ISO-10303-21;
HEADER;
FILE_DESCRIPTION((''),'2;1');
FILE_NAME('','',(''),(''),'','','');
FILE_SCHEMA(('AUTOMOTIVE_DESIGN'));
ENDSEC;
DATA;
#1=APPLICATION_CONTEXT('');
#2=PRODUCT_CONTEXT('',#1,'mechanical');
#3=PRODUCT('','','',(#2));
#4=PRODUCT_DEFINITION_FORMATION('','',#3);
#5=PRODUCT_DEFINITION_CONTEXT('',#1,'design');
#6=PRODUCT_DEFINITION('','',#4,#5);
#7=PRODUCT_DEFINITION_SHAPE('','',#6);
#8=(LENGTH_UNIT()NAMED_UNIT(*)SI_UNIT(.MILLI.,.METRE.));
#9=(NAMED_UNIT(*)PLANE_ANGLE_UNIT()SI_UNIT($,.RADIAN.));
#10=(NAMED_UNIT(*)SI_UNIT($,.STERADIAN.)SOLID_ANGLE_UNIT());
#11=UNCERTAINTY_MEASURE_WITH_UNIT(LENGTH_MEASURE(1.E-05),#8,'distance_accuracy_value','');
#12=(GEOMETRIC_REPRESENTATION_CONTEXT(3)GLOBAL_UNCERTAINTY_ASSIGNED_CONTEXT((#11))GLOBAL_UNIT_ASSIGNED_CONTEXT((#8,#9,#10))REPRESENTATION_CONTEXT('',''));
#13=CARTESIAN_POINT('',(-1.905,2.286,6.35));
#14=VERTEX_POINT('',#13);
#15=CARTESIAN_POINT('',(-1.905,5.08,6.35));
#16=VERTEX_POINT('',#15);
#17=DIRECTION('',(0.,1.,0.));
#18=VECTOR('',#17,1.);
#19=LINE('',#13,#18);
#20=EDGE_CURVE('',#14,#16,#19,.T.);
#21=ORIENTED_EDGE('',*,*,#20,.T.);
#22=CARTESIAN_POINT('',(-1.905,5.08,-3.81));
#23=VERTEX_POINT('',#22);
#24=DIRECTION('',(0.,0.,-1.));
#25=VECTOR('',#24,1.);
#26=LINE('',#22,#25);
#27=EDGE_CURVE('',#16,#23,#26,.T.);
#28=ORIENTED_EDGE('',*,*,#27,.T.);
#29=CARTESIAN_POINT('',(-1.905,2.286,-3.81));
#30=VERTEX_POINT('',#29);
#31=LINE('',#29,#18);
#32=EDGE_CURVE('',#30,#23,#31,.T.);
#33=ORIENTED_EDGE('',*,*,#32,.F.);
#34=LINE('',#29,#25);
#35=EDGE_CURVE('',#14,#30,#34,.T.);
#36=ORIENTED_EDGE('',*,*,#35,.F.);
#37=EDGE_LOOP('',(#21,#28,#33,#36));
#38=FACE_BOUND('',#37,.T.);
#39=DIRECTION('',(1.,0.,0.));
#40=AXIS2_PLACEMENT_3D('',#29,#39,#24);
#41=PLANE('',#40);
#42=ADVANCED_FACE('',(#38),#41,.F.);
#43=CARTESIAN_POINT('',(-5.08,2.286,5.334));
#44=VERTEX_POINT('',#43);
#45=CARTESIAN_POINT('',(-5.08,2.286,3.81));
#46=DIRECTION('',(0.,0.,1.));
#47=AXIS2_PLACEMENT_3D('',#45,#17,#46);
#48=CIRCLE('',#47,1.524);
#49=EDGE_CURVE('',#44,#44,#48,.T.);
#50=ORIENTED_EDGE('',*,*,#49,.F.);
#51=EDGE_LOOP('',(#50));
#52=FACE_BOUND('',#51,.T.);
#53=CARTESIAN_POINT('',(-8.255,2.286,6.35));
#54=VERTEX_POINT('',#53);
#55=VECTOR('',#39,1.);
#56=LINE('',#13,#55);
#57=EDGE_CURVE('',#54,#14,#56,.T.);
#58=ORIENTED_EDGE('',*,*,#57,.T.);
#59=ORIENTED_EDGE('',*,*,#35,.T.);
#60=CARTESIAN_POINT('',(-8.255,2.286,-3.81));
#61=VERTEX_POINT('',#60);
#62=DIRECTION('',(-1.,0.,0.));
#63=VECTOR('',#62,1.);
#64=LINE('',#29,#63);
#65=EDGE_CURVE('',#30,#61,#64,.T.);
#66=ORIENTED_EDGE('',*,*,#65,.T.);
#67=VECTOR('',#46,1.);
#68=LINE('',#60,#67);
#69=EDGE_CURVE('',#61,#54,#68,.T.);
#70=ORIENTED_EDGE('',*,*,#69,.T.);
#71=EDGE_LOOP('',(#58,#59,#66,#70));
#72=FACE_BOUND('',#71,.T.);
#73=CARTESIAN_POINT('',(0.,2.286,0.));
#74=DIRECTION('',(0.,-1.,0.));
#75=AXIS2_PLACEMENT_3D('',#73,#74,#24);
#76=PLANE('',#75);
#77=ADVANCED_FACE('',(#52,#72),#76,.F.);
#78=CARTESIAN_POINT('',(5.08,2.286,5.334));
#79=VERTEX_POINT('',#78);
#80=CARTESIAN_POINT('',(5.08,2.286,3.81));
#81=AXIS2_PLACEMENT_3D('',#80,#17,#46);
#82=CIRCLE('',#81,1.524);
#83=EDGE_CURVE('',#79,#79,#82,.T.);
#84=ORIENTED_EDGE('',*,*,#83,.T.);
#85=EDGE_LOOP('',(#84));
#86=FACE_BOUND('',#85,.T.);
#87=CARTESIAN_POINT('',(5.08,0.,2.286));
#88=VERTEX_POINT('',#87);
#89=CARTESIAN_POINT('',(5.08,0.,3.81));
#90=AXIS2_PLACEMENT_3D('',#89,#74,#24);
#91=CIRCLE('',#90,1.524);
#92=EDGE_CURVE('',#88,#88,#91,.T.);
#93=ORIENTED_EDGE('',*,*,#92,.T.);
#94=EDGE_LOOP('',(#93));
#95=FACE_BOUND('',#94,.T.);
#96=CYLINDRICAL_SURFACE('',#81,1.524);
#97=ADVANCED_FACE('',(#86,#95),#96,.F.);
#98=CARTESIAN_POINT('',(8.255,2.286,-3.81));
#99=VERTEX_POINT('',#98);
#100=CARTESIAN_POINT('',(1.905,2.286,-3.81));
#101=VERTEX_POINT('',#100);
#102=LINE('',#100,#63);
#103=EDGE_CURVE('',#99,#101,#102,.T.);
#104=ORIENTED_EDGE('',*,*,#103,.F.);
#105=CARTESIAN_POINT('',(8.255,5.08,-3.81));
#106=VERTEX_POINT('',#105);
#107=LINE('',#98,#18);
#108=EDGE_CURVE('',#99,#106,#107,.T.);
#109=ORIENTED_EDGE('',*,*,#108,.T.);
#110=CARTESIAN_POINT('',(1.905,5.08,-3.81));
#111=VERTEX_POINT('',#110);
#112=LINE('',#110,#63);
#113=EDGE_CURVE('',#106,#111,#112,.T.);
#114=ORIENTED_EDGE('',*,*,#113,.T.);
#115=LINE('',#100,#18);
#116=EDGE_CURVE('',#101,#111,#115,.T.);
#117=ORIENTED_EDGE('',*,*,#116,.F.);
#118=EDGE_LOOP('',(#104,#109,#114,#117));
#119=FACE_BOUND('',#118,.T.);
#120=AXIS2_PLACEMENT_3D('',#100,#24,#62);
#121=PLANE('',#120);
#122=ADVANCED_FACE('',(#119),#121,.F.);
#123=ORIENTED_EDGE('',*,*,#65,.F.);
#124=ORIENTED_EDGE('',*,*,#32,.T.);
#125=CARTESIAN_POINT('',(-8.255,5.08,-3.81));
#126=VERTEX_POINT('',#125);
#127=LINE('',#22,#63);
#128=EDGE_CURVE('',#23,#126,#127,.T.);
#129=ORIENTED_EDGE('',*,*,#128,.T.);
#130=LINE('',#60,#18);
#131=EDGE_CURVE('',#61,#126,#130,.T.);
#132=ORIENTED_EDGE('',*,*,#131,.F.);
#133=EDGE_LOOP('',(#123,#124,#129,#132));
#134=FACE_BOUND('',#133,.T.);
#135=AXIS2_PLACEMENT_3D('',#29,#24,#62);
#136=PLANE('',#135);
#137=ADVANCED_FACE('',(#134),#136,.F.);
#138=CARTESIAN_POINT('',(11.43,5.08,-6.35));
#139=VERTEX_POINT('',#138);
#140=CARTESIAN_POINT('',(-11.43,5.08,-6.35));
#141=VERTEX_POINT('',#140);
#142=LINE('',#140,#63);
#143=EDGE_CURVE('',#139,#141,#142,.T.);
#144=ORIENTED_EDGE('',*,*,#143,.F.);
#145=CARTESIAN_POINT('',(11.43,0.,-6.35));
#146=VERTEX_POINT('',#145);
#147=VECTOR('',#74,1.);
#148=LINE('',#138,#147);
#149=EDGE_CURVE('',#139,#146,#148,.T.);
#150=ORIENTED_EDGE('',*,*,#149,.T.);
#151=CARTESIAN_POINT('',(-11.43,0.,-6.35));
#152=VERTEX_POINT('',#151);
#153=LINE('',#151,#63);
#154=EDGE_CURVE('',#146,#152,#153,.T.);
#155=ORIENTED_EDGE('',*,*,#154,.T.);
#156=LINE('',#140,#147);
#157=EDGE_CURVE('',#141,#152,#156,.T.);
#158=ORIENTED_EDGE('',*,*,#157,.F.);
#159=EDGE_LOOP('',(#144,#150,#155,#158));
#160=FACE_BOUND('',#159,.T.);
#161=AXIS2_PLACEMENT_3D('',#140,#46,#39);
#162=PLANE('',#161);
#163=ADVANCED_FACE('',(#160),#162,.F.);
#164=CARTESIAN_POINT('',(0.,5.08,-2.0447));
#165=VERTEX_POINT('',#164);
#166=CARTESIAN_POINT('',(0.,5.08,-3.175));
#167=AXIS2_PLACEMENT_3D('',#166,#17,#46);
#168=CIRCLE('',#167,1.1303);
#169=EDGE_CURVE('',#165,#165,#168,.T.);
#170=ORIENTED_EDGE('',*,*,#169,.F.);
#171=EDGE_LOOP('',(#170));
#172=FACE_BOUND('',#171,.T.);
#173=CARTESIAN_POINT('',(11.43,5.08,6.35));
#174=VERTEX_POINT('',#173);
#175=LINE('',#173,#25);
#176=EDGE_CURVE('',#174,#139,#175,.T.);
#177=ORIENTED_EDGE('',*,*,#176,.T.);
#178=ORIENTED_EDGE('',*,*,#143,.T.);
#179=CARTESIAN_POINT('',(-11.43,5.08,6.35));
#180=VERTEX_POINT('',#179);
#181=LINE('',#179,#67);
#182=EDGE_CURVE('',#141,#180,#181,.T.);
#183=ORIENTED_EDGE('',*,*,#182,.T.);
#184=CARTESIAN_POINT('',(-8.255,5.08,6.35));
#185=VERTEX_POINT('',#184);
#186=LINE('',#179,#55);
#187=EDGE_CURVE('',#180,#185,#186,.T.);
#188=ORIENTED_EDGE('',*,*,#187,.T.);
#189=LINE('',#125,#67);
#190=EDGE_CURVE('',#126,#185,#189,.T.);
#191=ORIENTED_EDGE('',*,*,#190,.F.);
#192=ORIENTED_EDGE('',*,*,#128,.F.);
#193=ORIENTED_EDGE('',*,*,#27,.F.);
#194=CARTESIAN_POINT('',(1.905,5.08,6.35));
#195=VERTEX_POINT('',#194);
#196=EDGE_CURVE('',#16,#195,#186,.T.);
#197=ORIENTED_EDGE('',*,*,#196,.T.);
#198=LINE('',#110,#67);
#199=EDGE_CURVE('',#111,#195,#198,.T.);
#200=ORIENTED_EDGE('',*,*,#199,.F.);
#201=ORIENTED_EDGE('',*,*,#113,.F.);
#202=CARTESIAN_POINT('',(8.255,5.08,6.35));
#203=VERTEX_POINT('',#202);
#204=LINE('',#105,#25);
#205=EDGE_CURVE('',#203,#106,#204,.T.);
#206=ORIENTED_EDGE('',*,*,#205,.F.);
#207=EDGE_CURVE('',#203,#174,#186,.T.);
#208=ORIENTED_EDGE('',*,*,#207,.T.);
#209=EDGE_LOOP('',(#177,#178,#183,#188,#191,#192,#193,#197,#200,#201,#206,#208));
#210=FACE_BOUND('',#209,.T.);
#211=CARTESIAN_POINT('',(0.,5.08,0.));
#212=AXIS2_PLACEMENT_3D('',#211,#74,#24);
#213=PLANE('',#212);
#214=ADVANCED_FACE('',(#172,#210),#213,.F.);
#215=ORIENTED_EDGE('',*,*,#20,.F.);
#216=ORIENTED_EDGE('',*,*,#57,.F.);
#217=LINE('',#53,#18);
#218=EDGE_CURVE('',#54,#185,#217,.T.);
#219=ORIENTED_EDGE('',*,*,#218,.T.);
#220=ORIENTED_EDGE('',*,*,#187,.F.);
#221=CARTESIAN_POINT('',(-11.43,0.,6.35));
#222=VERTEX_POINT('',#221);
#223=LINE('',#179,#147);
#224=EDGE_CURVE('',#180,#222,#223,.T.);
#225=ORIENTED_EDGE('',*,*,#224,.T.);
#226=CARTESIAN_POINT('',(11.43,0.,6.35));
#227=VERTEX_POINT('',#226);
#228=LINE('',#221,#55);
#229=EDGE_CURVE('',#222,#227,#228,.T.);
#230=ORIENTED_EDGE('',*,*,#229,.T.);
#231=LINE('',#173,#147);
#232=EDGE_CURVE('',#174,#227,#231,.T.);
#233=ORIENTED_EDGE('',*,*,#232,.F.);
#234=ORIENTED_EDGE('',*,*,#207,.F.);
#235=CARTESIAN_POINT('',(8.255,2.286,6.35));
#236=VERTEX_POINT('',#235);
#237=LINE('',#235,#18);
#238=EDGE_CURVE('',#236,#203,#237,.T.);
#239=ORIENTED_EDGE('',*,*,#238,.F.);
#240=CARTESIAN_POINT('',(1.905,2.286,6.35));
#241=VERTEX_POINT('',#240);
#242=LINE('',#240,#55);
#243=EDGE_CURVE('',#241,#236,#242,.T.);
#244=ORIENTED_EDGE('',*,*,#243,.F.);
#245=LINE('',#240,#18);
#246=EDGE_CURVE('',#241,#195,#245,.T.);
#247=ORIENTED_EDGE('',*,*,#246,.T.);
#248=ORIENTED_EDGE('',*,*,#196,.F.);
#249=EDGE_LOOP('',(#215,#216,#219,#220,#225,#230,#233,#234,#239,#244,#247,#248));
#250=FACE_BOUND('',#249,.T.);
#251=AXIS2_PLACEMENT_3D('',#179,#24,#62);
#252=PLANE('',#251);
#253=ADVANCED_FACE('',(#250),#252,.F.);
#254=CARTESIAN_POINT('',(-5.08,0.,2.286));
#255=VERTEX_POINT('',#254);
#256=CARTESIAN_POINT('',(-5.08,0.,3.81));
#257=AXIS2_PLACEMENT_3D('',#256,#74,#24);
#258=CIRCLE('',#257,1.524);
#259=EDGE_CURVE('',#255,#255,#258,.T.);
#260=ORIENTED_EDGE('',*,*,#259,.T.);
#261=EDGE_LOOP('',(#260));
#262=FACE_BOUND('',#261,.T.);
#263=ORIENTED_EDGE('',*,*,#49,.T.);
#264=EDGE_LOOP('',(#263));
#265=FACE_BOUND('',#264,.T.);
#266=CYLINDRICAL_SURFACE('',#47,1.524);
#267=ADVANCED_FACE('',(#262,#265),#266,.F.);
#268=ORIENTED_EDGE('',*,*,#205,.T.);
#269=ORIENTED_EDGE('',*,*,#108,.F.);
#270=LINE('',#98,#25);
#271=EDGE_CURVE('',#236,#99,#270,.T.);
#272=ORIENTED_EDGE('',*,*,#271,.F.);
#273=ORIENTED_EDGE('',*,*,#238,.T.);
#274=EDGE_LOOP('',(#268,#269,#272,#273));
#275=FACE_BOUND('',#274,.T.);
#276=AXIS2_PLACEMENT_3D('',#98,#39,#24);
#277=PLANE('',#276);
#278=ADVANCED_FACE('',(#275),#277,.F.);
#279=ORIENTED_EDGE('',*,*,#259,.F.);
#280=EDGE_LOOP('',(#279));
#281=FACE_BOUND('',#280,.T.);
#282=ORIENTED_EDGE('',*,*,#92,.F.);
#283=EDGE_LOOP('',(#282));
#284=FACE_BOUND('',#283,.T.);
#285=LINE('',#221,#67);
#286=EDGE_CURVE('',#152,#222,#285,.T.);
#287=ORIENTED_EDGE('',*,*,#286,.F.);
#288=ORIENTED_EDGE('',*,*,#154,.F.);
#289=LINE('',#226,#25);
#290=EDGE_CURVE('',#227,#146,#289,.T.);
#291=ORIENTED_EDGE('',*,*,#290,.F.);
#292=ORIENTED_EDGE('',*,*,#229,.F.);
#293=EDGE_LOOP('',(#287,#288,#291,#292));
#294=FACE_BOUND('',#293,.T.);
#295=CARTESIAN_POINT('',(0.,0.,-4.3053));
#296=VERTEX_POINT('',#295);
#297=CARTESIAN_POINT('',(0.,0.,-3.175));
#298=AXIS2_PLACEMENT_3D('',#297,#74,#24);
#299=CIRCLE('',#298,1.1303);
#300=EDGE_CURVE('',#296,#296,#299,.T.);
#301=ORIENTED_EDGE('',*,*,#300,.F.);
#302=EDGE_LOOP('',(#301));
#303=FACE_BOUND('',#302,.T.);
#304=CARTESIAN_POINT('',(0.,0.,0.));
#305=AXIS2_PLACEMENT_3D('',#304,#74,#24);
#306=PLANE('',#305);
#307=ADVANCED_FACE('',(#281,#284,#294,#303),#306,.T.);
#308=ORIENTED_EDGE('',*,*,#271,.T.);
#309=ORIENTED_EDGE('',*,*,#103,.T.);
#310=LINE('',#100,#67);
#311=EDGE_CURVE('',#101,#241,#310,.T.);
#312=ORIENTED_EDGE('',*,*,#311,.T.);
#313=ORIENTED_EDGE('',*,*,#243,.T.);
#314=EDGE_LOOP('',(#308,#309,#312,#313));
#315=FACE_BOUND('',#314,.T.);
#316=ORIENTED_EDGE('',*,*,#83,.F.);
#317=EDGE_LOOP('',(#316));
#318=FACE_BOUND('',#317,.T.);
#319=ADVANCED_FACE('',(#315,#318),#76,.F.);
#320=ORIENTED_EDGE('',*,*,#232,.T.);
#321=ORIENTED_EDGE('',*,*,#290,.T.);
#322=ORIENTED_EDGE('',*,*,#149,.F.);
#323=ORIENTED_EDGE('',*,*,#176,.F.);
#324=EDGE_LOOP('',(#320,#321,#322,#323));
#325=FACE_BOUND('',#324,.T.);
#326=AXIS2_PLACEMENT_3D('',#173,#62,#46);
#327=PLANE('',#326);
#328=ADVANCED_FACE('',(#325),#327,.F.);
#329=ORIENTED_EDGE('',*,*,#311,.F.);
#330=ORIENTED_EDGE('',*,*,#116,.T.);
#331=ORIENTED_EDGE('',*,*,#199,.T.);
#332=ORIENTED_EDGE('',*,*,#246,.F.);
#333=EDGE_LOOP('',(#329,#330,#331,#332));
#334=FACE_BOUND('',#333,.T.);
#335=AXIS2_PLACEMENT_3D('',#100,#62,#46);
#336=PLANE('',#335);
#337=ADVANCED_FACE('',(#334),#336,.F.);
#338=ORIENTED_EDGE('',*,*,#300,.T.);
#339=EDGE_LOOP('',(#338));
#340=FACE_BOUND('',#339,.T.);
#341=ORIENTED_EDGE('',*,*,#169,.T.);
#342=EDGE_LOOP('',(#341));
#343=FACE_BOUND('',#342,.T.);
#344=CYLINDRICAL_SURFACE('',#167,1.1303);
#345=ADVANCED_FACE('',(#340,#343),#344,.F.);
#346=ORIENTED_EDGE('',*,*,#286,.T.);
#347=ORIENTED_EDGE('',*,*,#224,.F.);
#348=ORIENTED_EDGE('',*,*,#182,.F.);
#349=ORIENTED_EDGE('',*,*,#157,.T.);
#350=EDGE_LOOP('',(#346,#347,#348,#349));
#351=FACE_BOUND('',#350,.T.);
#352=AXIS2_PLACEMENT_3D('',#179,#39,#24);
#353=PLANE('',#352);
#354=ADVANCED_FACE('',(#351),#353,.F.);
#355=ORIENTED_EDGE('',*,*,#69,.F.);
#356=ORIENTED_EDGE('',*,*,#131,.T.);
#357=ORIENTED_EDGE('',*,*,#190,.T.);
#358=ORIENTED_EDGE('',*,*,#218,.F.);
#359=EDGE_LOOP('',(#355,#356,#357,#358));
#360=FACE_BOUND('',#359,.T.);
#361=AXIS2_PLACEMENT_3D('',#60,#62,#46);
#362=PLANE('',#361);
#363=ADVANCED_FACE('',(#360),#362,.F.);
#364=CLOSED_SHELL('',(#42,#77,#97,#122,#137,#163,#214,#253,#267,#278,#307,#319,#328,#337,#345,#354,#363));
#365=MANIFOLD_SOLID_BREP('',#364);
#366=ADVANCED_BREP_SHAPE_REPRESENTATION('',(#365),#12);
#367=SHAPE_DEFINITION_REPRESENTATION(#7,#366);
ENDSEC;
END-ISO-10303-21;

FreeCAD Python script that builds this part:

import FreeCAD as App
import Part
import Sketcher

V = App.Vector
Q = App.Units.Quantity


def add_polygon(sketch, points):
    """Adds a closed chain of lines whose ends are joined by coincident constraints."""
    first, n = sketch.GeometryCount, len(points)
    for a, b in zip(points, points[1:] + points[:1]):
        sketch.addGeometry(Part.LineSegment(App.Vector(*a, 0), App.Vector(*b, 0)), False)
    for i in range(n):
        sketch.addConstraint(Sketcher.Constraint("Coincident", first + i, 2, first + (i + 1) % n, 1))

doc = App.newDocument("Part")
body = doc.addObject("PartDesign::Body", "Body")

# Sketch on XZ plane
sketch1 = doc.addObject("Sketcher::SketchObject", "Sketch")
body.addObject(sketch1)
sketch1.AttachmentSupport = (doc.XZ_Plane, [""])
sketch1.MapMode = "FlatFace"
add_polygon(sketch1, [(-11, -6), (-11, 6), (11, 6), (11, -6)])  # lines 0-3
sketch1.addConstraint(Sketcher.Constraint("Vertical", 0))
sketch1.addConstraint(Sketcher.Constraint("Horizontal", 1))
sketch1.addConstraint(Sketcher.Constraint("Vertical", 2))
sketch1.addConstraint(Sketcher.Constraint("Horizontal", 3))
sketch1.addConstraint(Sketcher.Constraint("Symmetric", 0, 2, 2, 2, -1, 1))
sketch1.addConstraint(Sketcher.Constraint("DistanceX", 1, 1, 1, 2, Q("0.9 in")))
sketch1.addConstraint(Sketcher.Constraint("DistanceY", 0, 1, 0, 2, Q("0.5 in")))
pad1 = doc.addObject("PartDesign::Pad", "Pad")
body.addObject(pad1)
pad1.Profile = sketch1
pad1.Length = Q("0.2 in")
pad1.Reversed = True

# Sketch on XZ plane
sketch2 = doc.addObject("Sketcher::SketchObject", "Sketch001")
body.addObject(sketch2)
sketch2.AttachmentSupport = (doc.XZ_Plane, [""])
sketch2.MapMode = "FlatFace"
sketch2.AttachmentOffset = App.Placement(V(0, 0, -0.2 * 25.4), App.Rotation())
sketch2.addGeometry(Part.Circle(V(0, -3.2, 0), V(0, 0, 1), 1.1), False)
sketch2.addConstraint(Sketcher.Constraint("PointOnObject", 0, 3, -2))
sketch2.addConstraint(Sketcher.Constraint("Diameter", 0, Q("0.089 in")))
sketch2.addConstraint(Sketcher.Constraint("DistanceY", 0, 3, -1, 1, Q("0.125 in")))
doc.recompute()
hole = doc.addObject("PartDesign::Hole", "Hole")
body.addObject(hole)
hole.Profile = sketch2
hole.ThreadType = "None"
hole.Diameter = Q("0.089 in")
hole.DepthType = "Dimension"
hole.Depth = Q("0.299 in")
hole.DrillPoint = "Angled"
hole.DrillPointAngle = 118
hole.Reversed = True

# Sketch on XZ plane
sketch3 = doc.addObject("Sketcher::SketchObject", "Sketch002")
body.addObject(sketch3)
sketch3.AttachmentSupport = (doc.XZ_Plane, [""])
sketch3.MapMode = "FlatFace"
sketch3.AttachmentOffset = App.Placement(V(0, 0, -0.2 * 25.4), App.Rotation())
add_polygon(sketch3, [(-8, -4), (-8, 6), (-2, 6), (-2, -4)])  # lines 0-3
add_polygon(sketch3, [(2, -4), (2, 6), (8, 6), (8, -4)])  # lines 4-7
sketch3.addConstraint(Sketcher.Constraint("Vertical", 0))
sketch3.addConstraint(Sketcher.Constraint("Horizontal", 1))
sketch3.addConstraint(Sketcher.Constraint("Vertical", 2))
sketch3.addConstraint(Sketcher.Constraint("Horizontal", 3))
sketch3.addConstraint(Sketcher.Constraint("Vertical", 4))
sketch3.addConstraint(Sketcher.Constraint("Horizontal", 5))
sketch3.addConstraint(Sketcher.Constraint("Vertical", 6))
sketch3.addConstraint(Sketcher.Constraint("Horizontal", 7))
sketch3.addConstraint(Sketcher.Constraint("Symmetric", 1, 2, 4, 2, -2))
sketch3.addConstraint(Sketcher.Constraint("Symmetric", 3, 2, 6, 2, -2))
sketch3.addConstraint(Sketcher.Constraint("DistanceY", 0, 1, 0, 2, Q("0.4 in")))
sketch3.addConstraint(Sketcher.Constraint("DistanceX", 1, 1, 1, 2, Q("0.25 in")))
sketch3.addConstraint(Sketcher.Constraint("DistanceX", 0, 2, 4, 2, Q("0.4 in")))
sketch3.addConstraint(Sketcher.Constraint("DistanceY", -1, 1, 0, 2, Q("0.25 in")))
pocket1 = doc.addObject("PartDesign::Pocket", "Pocket")
body.addObject(pocket1)
pocket1.Profile = sketch3
pocket1.Length = Q("0.11 in")
pocket1.Reversed = True

# Sketch on XZ plane
sketch4 = doc.addObject("Sketcher::SketchObject", "Sketch003")
body.addObject(sketch4)
sketch4.AttachmentSupport = (doc.XZ_Plane, [""])
sketch4.MapMode = "FlatFace"
sketch4.AttachmentOffset = App.Placement(V(0, 0, -0.09 * 25.4), App.Rotation())
sketch4.addGeometry(Part.Circle(V(-5.1, 3.8, 0), V(0, 0, 1), 1.5), False)
sketch4.addGeometry(Part.Circle(V(5.1, 3.8, 0), V(0, 0, 1), 1.5), False)
sketch4.addConstraint(Sketcher.Constraint("Equal", 0, 1))
sketch4.addConstraint(Sketcher.Constraint("Symmetric", 0, 3, 1, 3, -2))
sketch4.addConstraint(Sketcher.Constraint("Diameter", 0, Q("0.12 in")))
sketch4.addConstraint(Sketcher.Constraint("DistanceX", 0, 3, -1, 1, Q("0.2 in")))
sketch4.addConstraint(Sketcher.Constraint("DistanceY", -1, 1, 0, 3, Q("0.15 in")))
doc.recompute()
hole2 = doc.addObject("PartDesign::Hole", "Hole001")
body.addObject(hole2)
hole2.Profile = sketch4
hole2.ThreadType = "None"
hole2.Diameter = Q("0.12 in")
hole2.DepthType = "Dimension"
hole2.Depth = Q("0.299 in")
hole2.DrillPoint = "Angled"
hole2.DrillPointAngle = 118
hole2.Reversed = True

doc.recompute()
